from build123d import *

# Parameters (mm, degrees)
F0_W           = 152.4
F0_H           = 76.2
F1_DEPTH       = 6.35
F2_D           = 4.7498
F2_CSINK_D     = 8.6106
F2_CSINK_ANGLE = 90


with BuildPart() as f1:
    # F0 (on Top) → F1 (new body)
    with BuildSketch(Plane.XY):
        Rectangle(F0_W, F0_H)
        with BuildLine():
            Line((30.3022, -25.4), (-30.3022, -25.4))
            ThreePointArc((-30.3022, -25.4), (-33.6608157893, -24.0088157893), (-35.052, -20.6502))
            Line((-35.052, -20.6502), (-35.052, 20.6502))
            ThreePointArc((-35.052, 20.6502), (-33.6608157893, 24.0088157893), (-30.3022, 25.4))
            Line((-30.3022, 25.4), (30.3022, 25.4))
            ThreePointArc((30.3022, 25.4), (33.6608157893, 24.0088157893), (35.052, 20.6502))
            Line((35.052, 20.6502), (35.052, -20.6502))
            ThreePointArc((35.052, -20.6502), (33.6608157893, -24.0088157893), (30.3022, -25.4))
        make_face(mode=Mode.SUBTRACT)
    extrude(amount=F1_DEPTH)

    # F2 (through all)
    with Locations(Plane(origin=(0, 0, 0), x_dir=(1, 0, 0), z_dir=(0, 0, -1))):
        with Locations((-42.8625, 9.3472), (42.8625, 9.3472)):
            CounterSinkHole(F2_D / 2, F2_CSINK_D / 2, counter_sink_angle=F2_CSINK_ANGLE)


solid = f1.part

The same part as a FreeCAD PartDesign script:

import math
import FreeCAD as App
import Part
import Sketcher

V = App.Vector
Q = App.Units.Quantity


def add_polygon(sketch, points):
    """Adds a closed chain of lines whose ends are joined by coincident constraints."""
    first, n = sketch.GeometryCount, len(points)
    for a, b in zip(points, points[1:] + points[:1]):
        sketch.addGeometry(Part.LineSegment(App.Vector(*a, 0), App.Vector(*b, 0)), False)
    for i in range(n):
        sketch.addConstraint(Sketcher.Constraint("Coincident", first + i, 2, first + (i + 1) % n, 1))

doc = App.newDocument("Part")
body = doc.addObject("PartDesign::Body", "Body")

sketch1 = body.newObject("Sketcher::SketchObject", "Sketch")
sketch1.AttachmentSupport = (doc.getObject("XY_Plane"), [""])
sketch1.MapMode = "FlatFace"
add_polygon(sketch1, [(-76.2, 38.1), (-76.2, -38.1), (76.2, -38.1), (76.2, 38.1)])
sketch1.addGeometry(Part.ArcOfCircle(Part.Circle(V(30.3, -20.7, 0), V(0, 0, 1), 4.7), math.radians(-90), math.radians(0)), False)
sketch1.addGeometry(Part.LineSegment(V(30.3, -25.4, 0), V(-30.3, -25.4, 0)), False)
sketch1.addGeometry(Part.ArcOfCircle(Part.Circle(V(-30.3, -20.7, 0), V(0, 0, 1), 4.7), math.radians(180), math.radians(270)), False)
sketch1.addGeometry(Part.LineSegment(V(-35.1, -20.7, 0), V(-35.1, 20.7, 0)), False)
sketch1.addGeometry(Part.ArcOfCircle(Part.Circle(V(-30.3, 20.7, 0), V(0, 0, 1), 4.7), math.radians(90), math.radians(180)), False)
sketch1.addGeometry(Part.LineSegment(V(-30.3, 25.4, 0), V(30.3, 25.4, 0)), False)
sketch1.addGeometry(Part.ArcOfCircle(Part.Circle(V(30.3, 20.7, 0), V(0, 0, 1), 4.7), math.radians(0), math.radians(90)), False)
sketch1.addGeometry(Part.LineSegment(V(35.1, 20.7, 0), V(35.1, -20.7, 0)), False)
sketch1.addConstraint([
    Sketcher.Constraint("Tangent", 4, 1, 5, 1),
    Sketcher.Constraint("Tangent", 5, 2, 6, 2),
    Sketcher.Constraint("Tangent", 6, 1, 7, 1),
    Sketcher.Constraint("Tangent", 7, 2, 8, 2),
    Sketcher.Constraint("Tangent", 8, 1, 9, 1),
    Sketcher.Constraint("Tangent", 9, 2, 10, 2),
    Sketcher.Constraint("Tangent", 10, 1, 11, 1),
    Sketcher.Constraint("Tangent", 11, 2, 4, 2),
    Sketcher.Constraint("Vertical", 0),
    Sketcher.Constraint("Horizontal", 1),
    Sketcher.Constraint("Vertical", 2),
    Sketcher.Constraint("Horizontal", 3),
    Sketcher.Constraint("Horizontal", 5),
    Sketcher.Constraint("Vertical", 7),
    Sketcher.Constraint("Horizontal", 9),
    Sketcher.Constraint("Vertical", 11),
    Sketcher.Constraint("Equal", 4, 6),
    Sketcher.Constraint("Equal", 6, 8),
    Sketcher.Constraint("Equal", 8, 10),
    Sketcher.Constraint("Symmetric", 4, 3, 8, 3, -1, 1),
    Sketcher.Constraint("Symmetric", 0, 2, 2, 2, -1, 1),
    Sketcher.Constraint("DistanceX", 1, 1, 1, 2, Q("6 in")),
    Sketcher.Constraint("DistanceY", 0, 2, 0, 1, Q("3 in")),
    Sketcher.Constraint("DistanceY", 4, 1, -1, 1, Q("1 in")),
    Sketcher.Constraint("Radius", 4, Q("0.187 in")),
    Sketcher.Constraint("DistanceX", 5, 2, 5, 1, Q("2.386 in")),
])
pad1 = body.newObject("PartDesign::Pad", "Pad")
pad1.Profile = sketch1
pad1.Length = Q("0.25 in")

sketch2 = body.newObject("Sketcher::SketchObject", "Sketch001")
sketch2.AttachmentSupport = (doc.getObject("XY_Plane"), [""])
sketch2.MapMode = "FlatFace"
sketch2.addGeometry([
    Part.Circle(V(-42.9, -9.3, 0), V(0, 0, 1), 2.4),
    Part.Circle(V(42.9, -9.3, 0), V(0, 0, 1), 2.4),
], False)
sketch2.addConstraint([
    Sketcher.Constraint("Equal", 0, 1),
    Sketcher.Constraint("Symmetric", 0, 3, 1, 3, -2),
    Sketcher.Constraint("Diameter", 0, Q("0.187 in")),
    Sketcher.Constraint("DistanceX", 0, 3, -1, 1, Q("1.6875 in")),
    Sketcher.Constraint("DistanceY", 0, 3, -1, 1, Q("0.368 in")),
])
doc.recompute()
hole = body.newObject("PartDesign::Hole", "Hole")
hole.Profile = sketch2
hole.ThreadType = "None"
hole.Diameter = Q("0.187 in")
hole.DepthType = "ThroughAll"
hole.HoleCutType = "Countersink"
hole.HoleCutDiameter = Q("0.339 in")
hole.HoleCutCountersinkAngle = 90
hole.Reversed = True

doc.recompute()
